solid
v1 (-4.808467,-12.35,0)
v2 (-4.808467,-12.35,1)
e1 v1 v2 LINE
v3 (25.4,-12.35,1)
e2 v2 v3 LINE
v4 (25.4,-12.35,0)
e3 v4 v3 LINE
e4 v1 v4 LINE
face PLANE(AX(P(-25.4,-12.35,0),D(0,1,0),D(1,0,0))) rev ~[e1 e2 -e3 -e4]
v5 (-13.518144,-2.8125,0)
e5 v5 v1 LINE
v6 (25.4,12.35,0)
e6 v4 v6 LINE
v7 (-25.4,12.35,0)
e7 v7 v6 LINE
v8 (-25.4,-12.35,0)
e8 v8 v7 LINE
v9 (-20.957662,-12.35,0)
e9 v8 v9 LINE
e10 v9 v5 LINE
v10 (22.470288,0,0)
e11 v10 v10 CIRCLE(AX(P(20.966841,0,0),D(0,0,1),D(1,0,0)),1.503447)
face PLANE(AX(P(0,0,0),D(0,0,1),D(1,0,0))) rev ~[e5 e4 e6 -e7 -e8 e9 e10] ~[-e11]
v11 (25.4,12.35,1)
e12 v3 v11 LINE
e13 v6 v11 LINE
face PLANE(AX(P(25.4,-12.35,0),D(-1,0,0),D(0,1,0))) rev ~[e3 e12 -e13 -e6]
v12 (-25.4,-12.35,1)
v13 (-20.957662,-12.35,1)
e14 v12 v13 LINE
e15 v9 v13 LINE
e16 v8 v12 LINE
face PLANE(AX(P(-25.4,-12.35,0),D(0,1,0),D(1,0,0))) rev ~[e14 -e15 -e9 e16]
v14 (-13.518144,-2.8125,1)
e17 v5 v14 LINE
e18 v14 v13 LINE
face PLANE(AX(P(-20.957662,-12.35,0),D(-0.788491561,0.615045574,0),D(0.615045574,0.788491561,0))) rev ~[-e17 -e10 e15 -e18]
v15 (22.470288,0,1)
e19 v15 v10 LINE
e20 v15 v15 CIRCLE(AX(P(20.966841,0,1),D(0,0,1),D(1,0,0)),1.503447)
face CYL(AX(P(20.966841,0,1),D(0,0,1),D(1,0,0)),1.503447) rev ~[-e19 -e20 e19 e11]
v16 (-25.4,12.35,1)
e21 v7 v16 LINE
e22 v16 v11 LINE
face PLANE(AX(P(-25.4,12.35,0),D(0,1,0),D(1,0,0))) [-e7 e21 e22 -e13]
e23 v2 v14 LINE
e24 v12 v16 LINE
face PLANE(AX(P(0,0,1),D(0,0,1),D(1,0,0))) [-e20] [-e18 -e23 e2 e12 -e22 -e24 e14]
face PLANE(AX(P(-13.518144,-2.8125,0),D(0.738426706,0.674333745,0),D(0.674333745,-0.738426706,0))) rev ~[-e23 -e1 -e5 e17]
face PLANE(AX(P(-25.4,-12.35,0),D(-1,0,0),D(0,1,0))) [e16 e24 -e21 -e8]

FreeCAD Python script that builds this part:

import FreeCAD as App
import Part
import Sketcher
from FreeCAD import Vector


def add_polygon(sketch, points):
    """Adds a closed chain of lines whose ends are joined by coincident constraints."""
    first, n = sketch.GeometryCount, len(points)
    for a, b in zip(points, points[1:] + points[:1]):
        sketch.addGeometry(Part.LineSegment(App.Vector(*a, 0), App.Vector(*b, 0)), False)
    for i in range(n):
        sketch.addConstraint(Sketcher.Constraint("Coincident", first + i, 2, first + (i + 1) % n, 1))

doc = App.newDocument("Part")
params = doc.addObject("Spreadsheet::Sheet", "Params")
for row, (alias, value) in enumerate([
    ("sketch1_width", "50.8 mm"),
    ("sketch1_height", "24.7 mm"),
    ("pad1_length", "1 mm"),
    ("pocket1_length", "25 mm"),
    ("pocket2_length", "25 mm"),
], start=1):
    params.set(f"A{row}", alias)
    params.set(f"B{row}", "=" + value)
    params.setAlias(f"B{row}", alias)

body = doc.addObject("PartDesign::Body", "Body")

# Sketch on XY plane
sketch1 = body.newObject("Sketcher::SketchObject", "Sketch")
sketch1.AttachmentSupport = (doc.getObject("XY_Plane"), [""])
sketch1.MapMode = "FlatFace"
add_polygon(sketch1, [(-25, 12), (-25, -12), (25, -12), (25, 12)])  # lines 0-3
sketch1.addConstraint([
    Sketcher.Constraint("Vertical", 0),
    Sketcher.Constraint("Horizontal", 1),
    Sketcher.Constraint("Vertical", 2),
    Sketcher.Constraint("Horizontal", 3),
    Sketcher.Constraint("Symmetric", 0, 2, 2, 2, -1, 1),
    Sketcher.Constraint("DistanceX", 1, 1, 1, 2, 50.8),
    Sketcher.Constraint("DistanceY", 0, 2, 0, 1, 24.7),
])
sketch1.setExpression("Constraints[9]", "Params.sketch1_width")
sketch1.setExpression("Constraints[10]", "Params.sketch1_height")
pad1 = body.newObject("PartDesign::Pad", "Pad")
pad1.Profile = sketch1
pad1.setExpression("Length", "Params.pad1_length")

# Sketch on XY plane
sketch2 = body.newObject("Sketcher::SketchObject", "Sketch001")
sketch2.AttachmentSupport = (doc.getObject("XY_Plane"), [""])
sketch2.MapMode = "FlatFace"
sketch2.AttachmentOffset = App.Placement(Vector(0, 0, 1), App.Rotation())
sketch2.addGeometry(Part.Circle(Vector(21, 0, 0), Vector(0, 0, 1), 1.5), False)
sketch2.addConstraint([
    Sketcher.Constraint("PointOnObject", 0, 3, -1),
    Sketcher.Constraint("Diameter", 0, 3.006894),
    Sketcher.Constraint("DistanceX", -1, 1, 0, 3, 20.966841),
])
pocket1 = body.newObject("PartDesign::Pocket", "Pocket")
pocket1.Profile = sketch2
pocket1.setExpression("Length", "Params.pocket1_length")

# Sketch on XY plane
sketch3 = body.newObject("Sketcher::SketchObject", "Sketch002")
sketch3.AttachmentSupport = (doc.getObject("XY_Plane"), [""])
sketch3.MapMode = "FlatFace"
add_polygon(sketch3, [(-14, -21), (-21, -12), (-14, -3), (-5, -12)])  # lines 0-3
sketch3.addConstraint([
    Sketcher.Constraint("Horizontal", 0, 2, 2, 2),
    Sketcher.Constraint("Vertical", 1, 2, 3, 2),
    Sketcher.Constraint("DistanceY", 0, 2, -1, 1, 12.35),
    Sketcher.Constraint("DistanceY", 1, 2, -1, 1, 2.8125),
    Sketcher.Constraint("Distance", 1, 12.095881),
    Sketcher.Constraint("Distance", 3, 12.50949),
    Sketcher.Constraint("DistanceX", 0, 2, -1, 1, 20.957662),
    Sketcher.Constraint("Distance", 0, 11.660845),
])
pocket2 = body.newObject("PartDesign::Pocket", "Pocket001")
pocket2.Profile = sketch3
pocket2.setExpression("Length", "Params.pocket2_length")
pocket2.Reversed = True

doc.recompute()
